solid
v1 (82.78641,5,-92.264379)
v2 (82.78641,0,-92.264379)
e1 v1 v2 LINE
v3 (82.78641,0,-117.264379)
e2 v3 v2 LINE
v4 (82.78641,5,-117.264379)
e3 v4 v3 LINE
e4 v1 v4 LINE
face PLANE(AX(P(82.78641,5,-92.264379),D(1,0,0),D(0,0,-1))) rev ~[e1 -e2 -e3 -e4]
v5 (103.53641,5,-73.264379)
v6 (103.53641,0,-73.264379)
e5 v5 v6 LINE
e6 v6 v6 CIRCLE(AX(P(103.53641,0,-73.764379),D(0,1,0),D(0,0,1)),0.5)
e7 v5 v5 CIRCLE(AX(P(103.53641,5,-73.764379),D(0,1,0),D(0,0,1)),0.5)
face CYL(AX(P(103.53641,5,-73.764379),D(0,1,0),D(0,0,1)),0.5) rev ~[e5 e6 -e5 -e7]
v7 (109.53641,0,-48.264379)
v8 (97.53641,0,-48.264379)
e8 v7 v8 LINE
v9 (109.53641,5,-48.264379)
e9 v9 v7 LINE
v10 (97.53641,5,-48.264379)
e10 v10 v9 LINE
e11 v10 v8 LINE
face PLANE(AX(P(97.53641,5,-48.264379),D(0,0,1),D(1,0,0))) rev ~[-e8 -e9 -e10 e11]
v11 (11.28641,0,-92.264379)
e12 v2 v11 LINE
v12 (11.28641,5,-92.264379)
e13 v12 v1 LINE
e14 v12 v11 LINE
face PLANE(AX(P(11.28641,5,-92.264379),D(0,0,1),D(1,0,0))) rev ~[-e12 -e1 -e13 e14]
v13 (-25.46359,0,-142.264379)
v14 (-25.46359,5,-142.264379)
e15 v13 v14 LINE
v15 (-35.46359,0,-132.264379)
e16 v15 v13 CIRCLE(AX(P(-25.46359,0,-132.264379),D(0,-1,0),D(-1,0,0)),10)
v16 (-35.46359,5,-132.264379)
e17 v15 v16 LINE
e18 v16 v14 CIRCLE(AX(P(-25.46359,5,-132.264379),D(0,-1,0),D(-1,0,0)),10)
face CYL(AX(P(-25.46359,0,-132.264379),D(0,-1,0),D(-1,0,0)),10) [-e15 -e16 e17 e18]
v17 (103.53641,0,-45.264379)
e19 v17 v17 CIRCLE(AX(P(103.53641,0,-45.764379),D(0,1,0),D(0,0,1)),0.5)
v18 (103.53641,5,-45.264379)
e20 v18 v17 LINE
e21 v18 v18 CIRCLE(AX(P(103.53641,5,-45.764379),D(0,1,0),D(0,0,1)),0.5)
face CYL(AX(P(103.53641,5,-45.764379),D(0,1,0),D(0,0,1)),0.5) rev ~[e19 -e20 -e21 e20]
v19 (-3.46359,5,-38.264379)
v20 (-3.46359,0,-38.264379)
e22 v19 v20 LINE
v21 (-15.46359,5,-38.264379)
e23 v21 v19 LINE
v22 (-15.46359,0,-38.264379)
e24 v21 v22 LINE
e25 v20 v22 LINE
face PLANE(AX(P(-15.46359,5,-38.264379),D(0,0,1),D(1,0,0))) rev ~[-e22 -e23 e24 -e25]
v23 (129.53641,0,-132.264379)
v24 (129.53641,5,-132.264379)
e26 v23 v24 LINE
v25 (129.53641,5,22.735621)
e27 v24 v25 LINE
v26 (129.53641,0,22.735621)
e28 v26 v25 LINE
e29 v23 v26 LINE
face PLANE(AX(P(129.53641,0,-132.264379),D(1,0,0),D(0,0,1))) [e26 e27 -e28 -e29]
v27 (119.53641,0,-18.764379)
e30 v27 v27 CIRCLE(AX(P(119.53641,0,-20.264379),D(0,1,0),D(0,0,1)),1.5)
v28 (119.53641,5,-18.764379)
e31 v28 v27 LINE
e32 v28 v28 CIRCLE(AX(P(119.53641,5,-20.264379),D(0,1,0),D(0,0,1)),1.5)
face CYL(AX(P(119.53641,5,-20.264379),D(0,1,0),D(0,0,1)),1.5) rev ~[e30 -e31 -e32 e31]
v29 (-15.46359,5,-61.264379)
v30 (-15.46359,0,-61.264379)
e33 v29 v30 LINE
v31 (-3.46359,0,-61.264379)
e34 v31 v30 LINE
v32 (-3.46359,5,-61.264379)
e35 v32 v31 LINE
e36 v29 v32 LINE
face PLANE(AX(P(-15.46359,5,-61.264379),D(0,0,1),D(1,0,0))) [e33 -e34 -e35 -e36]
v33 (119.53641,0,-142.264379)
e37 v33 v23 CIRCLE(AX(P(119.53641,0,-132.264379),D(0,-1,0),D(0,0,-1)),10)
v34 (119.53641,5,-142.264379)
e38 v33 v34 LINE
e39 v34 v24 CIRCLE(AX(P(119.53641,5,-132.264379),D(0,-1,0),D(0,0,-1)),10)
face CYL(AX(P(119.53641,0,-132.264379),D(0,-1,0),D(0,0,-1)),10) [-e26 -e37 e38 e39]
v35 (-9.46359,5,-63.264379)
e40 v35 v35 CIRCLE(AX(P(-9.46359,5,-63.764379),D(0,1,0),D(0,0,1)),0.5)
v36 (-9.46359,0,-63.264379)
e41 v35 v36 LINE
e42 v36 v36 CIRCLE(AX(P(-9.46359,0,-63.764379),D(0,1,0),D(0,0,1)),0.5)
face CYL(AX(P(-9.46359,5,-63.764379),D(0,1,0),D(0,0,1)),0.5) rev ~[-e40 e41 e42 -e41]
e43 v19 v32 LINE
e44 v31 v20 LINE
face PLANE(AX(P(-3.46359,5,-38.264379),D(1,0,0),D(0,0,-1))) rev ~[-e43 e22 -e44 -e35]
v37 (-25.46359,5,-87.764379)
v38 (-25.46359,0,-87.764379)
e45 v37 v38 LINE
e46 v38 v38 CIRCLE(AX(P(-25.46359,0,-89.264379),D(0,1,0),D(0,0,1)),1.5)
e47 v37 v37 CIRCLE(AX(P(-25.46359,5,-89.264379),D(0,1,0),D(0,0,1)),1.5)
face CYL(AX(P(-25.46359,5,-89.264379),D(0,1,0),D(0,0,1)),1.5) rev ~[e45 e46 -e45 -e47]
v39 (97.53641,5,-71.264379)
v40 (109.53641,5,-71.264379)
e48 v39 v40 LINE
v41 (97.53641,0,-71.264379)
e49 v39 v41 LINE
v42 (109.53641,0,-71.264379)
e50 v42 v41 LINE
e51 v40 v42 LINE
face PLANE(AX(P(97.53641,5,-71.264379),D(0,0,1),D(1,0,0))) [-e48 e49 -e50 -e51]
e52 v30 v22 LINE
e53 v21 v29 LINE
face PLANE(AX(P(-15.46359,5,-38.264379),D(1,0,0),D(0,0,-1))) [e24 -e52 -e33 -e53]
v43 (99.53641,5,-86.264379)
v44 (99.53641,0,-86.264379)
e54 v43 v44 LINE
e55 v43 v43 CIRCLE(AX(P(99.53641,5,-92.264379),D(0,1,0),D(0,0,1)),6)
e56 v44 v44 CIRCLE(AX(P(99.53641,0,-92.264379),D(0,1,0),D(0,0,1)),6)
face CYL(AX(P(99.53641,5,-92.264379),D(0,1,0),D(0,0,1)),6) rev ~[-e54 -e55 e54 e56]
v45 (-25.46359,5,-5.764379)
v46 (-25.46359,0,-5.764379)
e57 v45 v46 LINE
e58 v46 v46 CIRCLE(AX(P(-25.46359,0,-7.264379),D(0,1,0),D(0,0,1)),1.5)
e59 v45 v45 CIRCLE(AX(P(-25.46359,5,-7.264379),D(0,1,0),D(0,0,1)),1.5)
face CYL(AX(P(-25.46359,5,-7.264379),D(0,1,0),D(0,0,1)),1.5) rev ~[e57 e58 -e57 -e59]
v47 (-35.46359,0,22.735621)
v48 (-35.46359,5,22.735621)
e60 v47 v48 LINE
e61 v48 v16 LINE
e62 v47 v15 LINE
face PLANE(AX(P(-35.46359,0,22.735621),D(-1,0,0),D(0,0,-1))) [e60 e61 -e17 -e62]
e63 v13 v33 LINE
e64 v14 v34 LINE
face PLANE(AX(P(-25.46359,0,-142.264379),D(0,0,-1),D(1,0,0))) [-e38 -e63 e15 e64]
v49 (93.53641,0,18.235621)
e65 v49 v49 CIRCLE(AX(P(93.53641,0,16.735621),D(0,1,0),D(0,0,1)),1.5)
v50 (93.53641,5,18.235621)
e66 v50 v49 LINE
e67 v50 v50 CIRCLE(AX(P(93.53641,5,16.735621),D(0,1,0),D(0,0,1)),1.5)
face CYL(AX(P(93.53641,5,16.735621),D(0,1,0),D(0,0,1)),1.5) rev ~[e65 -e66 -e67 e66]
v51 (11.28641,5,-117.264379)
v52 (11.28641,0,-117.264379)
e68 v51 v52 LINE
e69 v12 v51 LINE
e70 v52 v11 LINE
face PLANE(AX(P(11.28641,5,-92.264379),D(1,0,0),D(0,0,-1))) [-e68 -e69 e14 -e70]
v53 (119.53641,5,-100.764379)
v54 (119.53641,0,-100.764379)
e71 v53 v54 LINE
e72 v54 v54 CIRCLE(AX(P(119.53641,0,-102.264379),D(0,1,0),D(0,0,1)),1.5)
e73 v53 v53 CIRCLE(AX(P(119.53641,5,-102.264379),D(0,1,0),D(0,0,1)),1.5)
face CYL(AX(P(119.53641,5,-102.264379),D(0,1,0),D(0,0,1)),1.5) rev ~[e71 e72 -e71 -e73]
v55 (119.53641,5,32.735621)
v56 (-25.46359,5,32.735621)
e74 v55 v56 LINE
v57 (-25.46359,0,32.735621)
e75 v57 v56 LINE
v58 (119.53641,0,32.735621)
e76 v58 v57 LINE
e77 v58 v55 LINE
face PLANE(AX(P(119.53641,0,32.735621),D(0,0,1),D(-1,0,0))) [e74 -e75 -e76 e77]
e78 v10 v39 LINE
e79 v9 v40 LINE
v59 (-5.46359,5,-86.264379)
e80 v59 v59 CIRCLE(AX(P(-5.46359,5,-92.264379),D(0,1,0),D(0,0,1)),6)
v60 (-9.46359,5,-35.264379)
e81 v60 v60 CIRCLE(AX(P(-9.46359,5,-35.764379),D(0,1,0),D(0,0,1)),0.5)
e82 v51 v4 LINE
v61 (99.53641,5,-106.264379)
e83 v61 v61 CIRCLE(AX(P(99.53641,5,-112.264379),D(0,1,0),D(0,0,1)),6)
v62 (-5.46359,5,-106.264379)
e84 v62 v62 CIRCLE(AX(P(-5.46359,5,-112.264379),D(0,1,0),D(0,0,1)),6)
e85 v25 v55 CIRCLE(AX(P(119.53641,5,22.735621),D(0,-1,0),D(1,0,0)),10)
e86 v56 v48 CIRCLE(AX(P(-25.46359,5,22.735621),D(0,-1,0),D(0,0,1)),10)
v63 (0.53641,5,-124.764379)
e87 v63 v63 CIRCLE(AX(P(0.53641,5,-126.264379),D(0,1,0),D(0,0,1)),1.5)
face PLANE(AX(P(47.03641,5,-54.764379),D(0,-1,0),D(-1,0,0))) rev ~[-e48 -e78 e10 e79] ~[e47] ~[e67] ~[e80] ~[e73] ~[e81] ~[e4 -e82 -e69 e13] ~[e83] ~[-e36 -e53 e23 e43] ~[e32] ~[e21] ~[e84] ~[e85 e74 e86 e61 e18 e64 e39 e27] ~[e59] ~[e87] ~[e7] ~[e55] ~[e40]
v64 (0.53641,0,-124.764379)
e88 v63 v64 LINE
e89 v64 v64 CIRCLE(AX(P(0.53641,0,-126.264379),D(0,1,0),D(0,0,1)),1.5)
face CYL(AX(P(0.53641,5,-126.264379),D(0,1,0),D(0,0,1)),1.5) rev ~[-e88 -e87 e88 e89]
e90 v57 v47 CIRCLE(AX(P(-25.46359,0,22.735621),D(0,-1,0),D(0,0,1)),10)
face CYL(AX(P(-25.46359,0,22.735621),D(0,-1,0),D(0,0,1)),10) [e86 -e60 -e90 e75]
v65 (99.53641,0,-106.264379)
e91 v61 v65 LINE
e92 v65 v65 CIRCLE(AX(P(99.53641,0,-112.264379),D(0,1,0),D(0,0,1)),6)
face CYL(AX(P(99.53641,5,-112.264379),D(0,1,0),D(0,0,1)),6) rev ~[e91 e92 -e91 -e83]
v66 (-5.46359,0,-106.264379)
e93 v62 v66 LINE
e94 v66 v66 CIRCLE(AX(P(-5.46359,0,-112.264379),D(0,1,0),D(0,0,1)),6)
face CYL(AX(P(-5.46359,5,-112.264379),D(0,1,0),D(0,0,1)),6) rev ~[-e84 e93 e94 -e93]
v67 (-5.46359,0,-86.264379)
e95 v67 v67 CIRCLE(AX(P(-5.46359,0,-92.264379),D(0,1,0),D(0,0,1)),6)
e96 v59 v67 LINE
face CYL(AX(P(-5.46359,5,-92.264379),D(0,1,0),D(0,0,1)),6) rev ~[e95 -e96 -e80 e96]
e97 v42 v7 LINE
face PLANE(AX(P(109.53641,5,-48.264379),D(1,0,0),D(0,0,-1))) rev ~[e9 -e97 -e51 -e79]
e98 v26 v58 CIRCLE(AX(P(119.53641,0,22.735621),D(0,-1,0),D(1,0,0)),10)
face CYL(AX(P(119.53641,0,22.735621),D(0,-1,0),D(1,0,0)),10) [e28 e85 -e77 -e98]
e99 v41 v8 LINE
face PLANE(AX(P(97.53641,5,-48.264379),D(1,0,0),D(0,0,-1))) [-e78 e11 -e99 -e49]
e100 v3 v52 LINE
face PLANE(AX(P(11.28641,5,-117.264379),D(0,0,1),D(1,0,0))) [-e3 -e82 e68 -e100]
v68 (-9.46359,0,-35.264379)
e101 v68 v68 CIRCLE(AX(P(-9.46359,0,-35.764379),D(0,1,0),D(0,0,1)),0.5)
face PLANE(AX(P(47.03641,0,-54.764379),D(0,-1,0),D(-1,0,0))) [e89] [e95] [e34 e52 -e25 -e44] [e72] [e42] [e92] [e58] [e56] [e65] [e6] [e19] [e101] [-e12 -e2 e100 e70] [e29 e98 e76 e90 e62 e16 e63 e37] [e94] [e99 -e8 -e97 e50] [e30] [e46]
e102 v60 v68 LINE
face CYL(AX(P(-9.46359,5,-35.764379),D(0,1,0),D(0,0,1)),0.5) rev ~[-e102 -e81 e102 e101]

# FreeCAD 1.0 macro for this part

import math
import FreeCAD as App
import Part
import Sketcher
from FreeCAD import Vector
Q = App.Units.Quantity

doc = App.newDocument("Part")
body = doc.addObject("PartDesign::Body", "Body")

sketch1 = body.newObject("Sketcher::SketchObject", "Sketch")
sketch1.AttachmentSupport = (doc.getObject("XZ_Plane"), [""])
sketch1.MapMode = "FlatFace"
sketch1.addGeometry([
    Part.LineSegment(Vector(119.53641, -142.264379, 0), Vector(-25.46359, -142.264379, 0)),
    Part.ArcOfCircle(Part.Circle(Vector(-25.46359, -132.264379, 0), Vector(0, 0, 1), 10), math.radians(180), math.radians(270)),
    Part.LineSegment(Vector(-35.46359, -132.264379, 0), Vector(-35.46359, 22.735621, 0)),
    Part.ArcOfCircle(Part.Circle(Vector(-25.46359, 22.735621, 0), Vector(0, 0, 1), 10), math.radians(90), math.radians(180)),
    Part.LineSegment(Vector(-25.46359, 32.735621, 0), Vector(119.53641, 32.735621, 0)),
    Part.ArcOfCircle(Part.Circle(Vector(119.53641, 22.735621, 0), Vector(0, 0, 1), 10), math.radians(0), math.radians(90)),
    Part.LineSegment(Vector(129.53641, 22.735621, 0), Vector(129.53641, -132.264379, 0)),
    Part.ArcOfCircle(Part.Circle(Vector(119.53641, -132.264379, 0), Vector(0, 0, 1), 10), math.radians(-90), math.radians(0)),
], False)
sketch1.addConstraint([
    Sketcher.Constraint("Tangent", 0, 2, 1, 2),
    Sketcher.Constraint("Tangent", 1, 1, 2, 1),
    Sketcher.Constraint("Tangent", 2, 2, 3, 2),
    Sketcher.Constraint("Tangent", 3, 1, 4, 1),
    Sketcher.Constraint("Tangent", 4, 2, 5, 2),
    Sketcher.Constraint("Tangent", 5, 1, 6, 1),
    Sketcher.Constraint("Tangent", 6, 2, 7, 2),
    Sketcher.Constraint("Tangent", 7, 1, 0, 1),
    Sketcher.Constraint("Horizontal", 0),
    Sketcher.Constraint("Vertical", 2),
    Sketcher.Constraint("Horizontal", 4),
    Sketcher.Constraint("Vertical", 6),
    Sketcher.Constraint("Equal", 1, 3),
    Sketcher.Constraint("Equal", 3, 5),
    Sketcher.Constraint("Equal", 5, 7),
    Sketcher.Constraint("Radius", 1, Q("10 mm")),
    Sketcher.Constraint("DistanceX", 0, 2, 0, 1, Q("145 mm")),
    Sketcher.Constraint("DistanceY", 2, 1, 2, 2, Q("155 mm")),
    Sketcher.Constraint("DistanceX", 1, 3, -1, 1, Q("25.46359 mm")),
    Sketcher.Constraint("DistanceY", 1, 3, -1, 1, Q("132.264379 mm")),
])
pad1 = body.newObject("PartDesign::Pad", "Pad")
pad1.Profile = sketch1
pad1.Length = 5
pad1.Reversed = True

sketch2 = body.newObject("Sketcher::SketchObject", "Sketch001")
sketch2.AttachmentSupport = (doc.getObject("XZ_Plane"), [""])
sketch2.MapMode = "FlatFace"
sketch2.AttachmentOffset = App.Placement(Vector(0, 0, -5), App.Rotation())
sketch2.addGeometry([
    Part.Circle(Vector(-25.46359, -7.264379, 0), Vector(0, 0, 1), 1.5),
    Part.Circle(Vector(0.53641, -126.264379, 0), Vector(0, 0, 1), 1.5),
    Part.Circle(Vector(119.53641, -102.264379, 0), Vector(0, 0, 1), 1.5),
    Part.Circle(Vector(93.53641, 16.735621, 0), Vector(0, 0, 1), 1.5),
], False)
sketch2.addConstraint([
    Sketcher.Constraint("Equal", 0, 1),
    Sketcher.Constraint("Equal", 1, 2),
    Sketcher.Constraint("Equal", 2, 3),
    Sketcher.Constraint("Diameter", 0, Q("3 mm")),
    Sketcher.Constraint("DistanceX", 0, 3, 1, 3, Q("26 mm")),
    Sketcher.Constraint("DistanceY", 1, 3, 0, 3, Q("119 mm")),
    Sketcher.Constraint("DistanceX", 1, 3, 2, 3, Q("119 mm")),
    Sketcher.Constraint("DistanceY", 1, 3, 2, 3, Q("24 mm")),
    Sketcher.Constraint("DistanceX", 0, 3, 3, 3, Q("119 mm")),
    Sketcher.Constraint("DistanceY", 0, 3, 3, 3, Q("24 mm")),
    Sketcher.Constraint("DistanceX", 0, 3, -1, 1, Q("25.46359 mm")),
    Sketcher.Constraint("DistanceY", 0, 3, -1, 1, Q("7.264379 mm")),
])
pocket1 = body.newObject("PartDesign::Pocket", "Pocket")
pocket1.Profile = sketch2
pocket1.Length = 5
pocket1.Reversed = True

sketch3 = body.newObject("Sketcher::SketchObject", "Sketch002")
sketch3.AttachmentSupport = (doc.getObject("XZ_Plane"), [""])
sketch3.MapMode = "FlatFace"
sketch3.AttachmentOffset = App.Placement(Vector(0, 0, -5), App.Rotation())
sketch3.addGeometry([
    Part.Circle(Vector(-9.46359, -35.764379, 0), Vector(0, 0, 1), 0.5),
    Part.Circle(Vector(-9.46359, -63.764379, 0), Vector(0, 0, 1), 0.5),
    Part.Circle(Vector(103.53641, -45.764379, 0), Vector(0, 0, 1), 0.5),
    Part.Circle(Vector(103.53641, -73.764379, 0), Vector(0, 0, 1), 0.5),
    Part.LineSegment(Vector(-15.46359, -61.264379, 0), Vector(-15.46359, -38.264379, 0)),
    Part.LineSegment(Vector(-15.46359, -38.264379, 0), Vector(-3.46359, -38.264379, 0)),
    Part.LineSegment(Vector(-3.46359, -38.264379, 0), Vector(-3.46359, -61.264379, 0)),
    Part.LineSegment(Vector(-3.46359, -61.264379, 0), Vector(-15.46359, -61.264379, 0)),
    Part.LineSegment(Vector(97.53641, -71.264379, 0), Vector(97.53641, -48.264379, 0)),
    Part.LineSegment(Vector(97.53641, -48.264379, 0), Vector(109.53641, -48.264379, 0)),
    Part.LineSegment(Vector(109.53641, -48.264379, 0), Vector(109.53641, -71.264379, 0)),
    Part.LineSegment(Vector(109.53641, -71.264379, 0), Vector(97.53641, -71.264379, 0)),
], False)
sketch3.addConstraint([
    Sketcher.Constraint("Coincident", 4, 2, 5, 1),
    Sketcher.Constraint("Coincident", 5, 2, 6, 1),
    Sketcher.Constraint("Coincident", 6, 2, 7, 1),
    Sketcher.Constraint("Coincident", 7, 2, 4, 1),
    Sketcher.Constraint("Coincident", 8, 2, 9, 1),
    Sketcher.Constraint("Coincident", 9, 2, 10, 1),
    Sketcher.Constraint("Coincident", 10, 2, 11, 1),
    Sketcher.Constraint("Coincident", 11, 2, 8, 1),
    Sketcher.Constraint("Vertical", 4),
    Sketcher.Constraint("Horizontal", 5),
    Sketcher.Constraint("Vertical", 6),
    Sketcher.Constraint("Horizontal", 7),
    Sketcher.Constraint("Vertical", 8),
    Sketcher.Constraint("Horizontal", 9),
    Sketcher.Constraint("Vertical", 10),
    Sketcher.Constraint("Horizontal", 11),
    Sketcher.Constraint("Equal", 0, 1),
    Sketcher.Constraint("Equal", 1, 2),
    Sketcher.Constraint("Equal", 2, 3),
    Sketcher.Constraint("Vertical", 0, 3, 1, 3),
    Sketcher.Constraint("Vertical", 2, 3, 3, 3),
    Sketcher.Constraint("Equal", 7, 9),
    Sketcher.Constraint("Equal", 6, 8),
    Sketcher.Constraint("Diameter", 0, Q("1 mm")),
    Sketcher.Constraint("DistanceX", 5, 1, 5, 2, Q("12 mm")),
    Sketcher.Constraint("DistanceY", 4, 1, 4, 2, Q("23 mm")),
    Sketcher.Constraint("DistanceY", 1, 3, 0, 3, Q("28 mm")),
    Sketcher.Constraint("DistanceX", 0, 3, 2, 3, Q("113 mm")),
    Sketcher.Constraint("DistanceY", 2, 3, 0, 3, Q("10 mm")),
    Sketcher.Constraint("DistanceY", 3, 3, 2, 3, Q("28 mm")),
    Sketcher.Constraint("DistanceX", 4, 2, 0, 3, Q("6 mm")),
    Sketcher.Constraint("DistanceX", 8, 2, 2, 3, Q("6 mm")),
    Sketcher.Constraint("DistanceY", 8, 2, 5, 2, Q("10 mm")),
    Sketcher.Constraint("DistanceY", 4, 2, 0, 3, Q("2.5 mm")),
    Sketcher.Constraint("DistanceX", 0, 3, -1, 1, Q("9.46359 mm")),
    Sketcher.Constraint("DistanceY", 0, 3, -1, 1, Q("35.764379 mm")),
])
pocket2 = body.newObject("PartDesign::Pocket", "Pocket001")
pocket2.Profile = sketch3
pocket2.Type = "ThroughAll"
pocket2.Reversed = True

sketch4 = body.newObject("Sketcher::SketchObject", "Sketch003")
sketch4.AttachmentSupport = (doc.getObject("XZ_Plane"), [""])
sketch4.MapMode = "FlatFace"
sketch4.AttachmentOffset = App.Placement(Vector(0, 0, -5), App.Rotation())
sketch4.addGeometry([
    Part.Circle(Vector(-25.46359, -89.264379, 0), Vector(0, 0, 1), 1.5),
    Part.Circle(Vector(119.53641, -20.264379, 0), Vector(0, 0, 1), 1.5),
    Part.LineSegment(Vector(11.28641, -117.264379, 0), Vector(11.28641, -92.264379, 0)),
    Part.LineSegment(Vector(11.28641, -92.264379, 0), Vector(82.78641, -92.264379, 0)),
    Part.LineSegment(Vector(82.78641, -92.264379, 0), Vector(82.78641, -117.264379, 0)),
    Part.LineSegment(Vector(82.78641, -117.264379, 0), Vector(11.28641, -117.264379, 0)),
], False)
sketch4.addConstraint([
    Sketcher.Constraint("Coincident", 2, 2, 3, 1),
    Sketcher.Constraint("Coincident", 3, 2, 4, 1),
    Sketcher.Constraint("Coincident", 4, 2, 5, 1),
    Sketcher.Constraint("Coincident", 5, 2, 2, 1),
    Sketcher.Constraint("Vertical", 2),
    Sketcher.Constraint("Horizontal", 3),
    Sketcher.Constraint("Vertical", 4),
    Sketcher.Constraint("Horizontal", 5),
    Sketcher.Constraint("Equal", 0, 1),
    Sketcher.Constraint("Diameter", 0, Q("3 mm")),
    Sketcher.Constraint("DistanceY", 2, 1, 2, 2, Q("25 mm")),
    Sketcher.Constraint("DistanceX", 3, 1, 3, 2, Q("71.5 mm")),
    Sketcher.Constraint("DistanceX", 0, 3, 1, 3, Q("145 mm")),
    Sketcher.Constraint("DistanceY", 0, 3, 1, 3, Q("69 mm")),
    Sketcher.Constraint("DistanceY", 2, 2, 0, 3, Q("3 mm")),
    Sketcher.Constraint("DistanceX", 0, 3, 2, 2, Q("36.75 mm")),
    Sketcher.Constraint("DistanceX", 0, 3, -1, 1, Q("25.46359 mm")),
    Sketcher.Constraint("DistanceY", 0, 3, -1, 1, Q("89.264379 mm")),
])
pocket3 = body.newObject("PartDesign::Pocket", "Pocket002")
pocket3.Profile = sketch4
pocket3.Type = "ThroughAll"
pocket3.Reversed = True

sketch5 = body.newObject("Sketcher::SketchObject", "Sketch004")
sketch5.AttachmentSupport = (doc.getObject("XZ_Plane"), [""])
sketch5.MapMode = "FlatFace"
sketch5.AttachmentOffset = App.Placement(Vector(0, 0, -5), App.Rotation())
sketch5.addGeometry([
    Part.Circle(Vector(-5.46359, -112.264379, 0), Vector(0, 0, 1), 6),
    Part.Circle(Vector(-5.46359, -92.264379, 0), Vector(0, 0, 1), 6),
    Part.Circle(Vector(99.53641, -112.264379, 0), Vector(0, 0, 1), 6),
    Part.Circle(Vector(99.53641, -92.264379, 0), Vector(0, 0, 1), 6),
], False)
sketch5.addConstraint([
    Sketcher.Constraint("Equal", 0, 1),
    Sketcher.Constraint("Equal", 1, 2),
    Sketcher.Constraint("Equal", 2, 3),
    Sketcher.Constraint("Horizontal", 0, 3, 2, 3),
    Sketcher.Constraint("Horizontal", 1, 3, 3, 3),
    Sketcher.Constraint("Vertical", 0, 3, 1, 3),
    Sketcher.Constraint("Vertical", 2, 3, 3, 3),
    Sketcher.Constraint("Diameter", 0, Q("12 mm")),
    Sketcher.Constraint("DistanceY", 0, 3, 1, 3, Q("20 mm")),
    Sketcher.Constraint("DistanceX", 0, 3, 2, 3, Q("105 mm")),
    Sketcher.Constraint("DistanceX", 0, 3, -1, 1, Q("5.46359 mm")),
    Sketcher.Constraint("DistanceY", 0, 3, -1, 1, Q("112.264379 mm")),
])
pocket4 = body.newObject("PartDesign::Pocket", "Pocket003")
pocket4.Profile = sketch5
pocket4.Type = "ThroughAll"
pocket4.Reversed = True

doc.recompute()
